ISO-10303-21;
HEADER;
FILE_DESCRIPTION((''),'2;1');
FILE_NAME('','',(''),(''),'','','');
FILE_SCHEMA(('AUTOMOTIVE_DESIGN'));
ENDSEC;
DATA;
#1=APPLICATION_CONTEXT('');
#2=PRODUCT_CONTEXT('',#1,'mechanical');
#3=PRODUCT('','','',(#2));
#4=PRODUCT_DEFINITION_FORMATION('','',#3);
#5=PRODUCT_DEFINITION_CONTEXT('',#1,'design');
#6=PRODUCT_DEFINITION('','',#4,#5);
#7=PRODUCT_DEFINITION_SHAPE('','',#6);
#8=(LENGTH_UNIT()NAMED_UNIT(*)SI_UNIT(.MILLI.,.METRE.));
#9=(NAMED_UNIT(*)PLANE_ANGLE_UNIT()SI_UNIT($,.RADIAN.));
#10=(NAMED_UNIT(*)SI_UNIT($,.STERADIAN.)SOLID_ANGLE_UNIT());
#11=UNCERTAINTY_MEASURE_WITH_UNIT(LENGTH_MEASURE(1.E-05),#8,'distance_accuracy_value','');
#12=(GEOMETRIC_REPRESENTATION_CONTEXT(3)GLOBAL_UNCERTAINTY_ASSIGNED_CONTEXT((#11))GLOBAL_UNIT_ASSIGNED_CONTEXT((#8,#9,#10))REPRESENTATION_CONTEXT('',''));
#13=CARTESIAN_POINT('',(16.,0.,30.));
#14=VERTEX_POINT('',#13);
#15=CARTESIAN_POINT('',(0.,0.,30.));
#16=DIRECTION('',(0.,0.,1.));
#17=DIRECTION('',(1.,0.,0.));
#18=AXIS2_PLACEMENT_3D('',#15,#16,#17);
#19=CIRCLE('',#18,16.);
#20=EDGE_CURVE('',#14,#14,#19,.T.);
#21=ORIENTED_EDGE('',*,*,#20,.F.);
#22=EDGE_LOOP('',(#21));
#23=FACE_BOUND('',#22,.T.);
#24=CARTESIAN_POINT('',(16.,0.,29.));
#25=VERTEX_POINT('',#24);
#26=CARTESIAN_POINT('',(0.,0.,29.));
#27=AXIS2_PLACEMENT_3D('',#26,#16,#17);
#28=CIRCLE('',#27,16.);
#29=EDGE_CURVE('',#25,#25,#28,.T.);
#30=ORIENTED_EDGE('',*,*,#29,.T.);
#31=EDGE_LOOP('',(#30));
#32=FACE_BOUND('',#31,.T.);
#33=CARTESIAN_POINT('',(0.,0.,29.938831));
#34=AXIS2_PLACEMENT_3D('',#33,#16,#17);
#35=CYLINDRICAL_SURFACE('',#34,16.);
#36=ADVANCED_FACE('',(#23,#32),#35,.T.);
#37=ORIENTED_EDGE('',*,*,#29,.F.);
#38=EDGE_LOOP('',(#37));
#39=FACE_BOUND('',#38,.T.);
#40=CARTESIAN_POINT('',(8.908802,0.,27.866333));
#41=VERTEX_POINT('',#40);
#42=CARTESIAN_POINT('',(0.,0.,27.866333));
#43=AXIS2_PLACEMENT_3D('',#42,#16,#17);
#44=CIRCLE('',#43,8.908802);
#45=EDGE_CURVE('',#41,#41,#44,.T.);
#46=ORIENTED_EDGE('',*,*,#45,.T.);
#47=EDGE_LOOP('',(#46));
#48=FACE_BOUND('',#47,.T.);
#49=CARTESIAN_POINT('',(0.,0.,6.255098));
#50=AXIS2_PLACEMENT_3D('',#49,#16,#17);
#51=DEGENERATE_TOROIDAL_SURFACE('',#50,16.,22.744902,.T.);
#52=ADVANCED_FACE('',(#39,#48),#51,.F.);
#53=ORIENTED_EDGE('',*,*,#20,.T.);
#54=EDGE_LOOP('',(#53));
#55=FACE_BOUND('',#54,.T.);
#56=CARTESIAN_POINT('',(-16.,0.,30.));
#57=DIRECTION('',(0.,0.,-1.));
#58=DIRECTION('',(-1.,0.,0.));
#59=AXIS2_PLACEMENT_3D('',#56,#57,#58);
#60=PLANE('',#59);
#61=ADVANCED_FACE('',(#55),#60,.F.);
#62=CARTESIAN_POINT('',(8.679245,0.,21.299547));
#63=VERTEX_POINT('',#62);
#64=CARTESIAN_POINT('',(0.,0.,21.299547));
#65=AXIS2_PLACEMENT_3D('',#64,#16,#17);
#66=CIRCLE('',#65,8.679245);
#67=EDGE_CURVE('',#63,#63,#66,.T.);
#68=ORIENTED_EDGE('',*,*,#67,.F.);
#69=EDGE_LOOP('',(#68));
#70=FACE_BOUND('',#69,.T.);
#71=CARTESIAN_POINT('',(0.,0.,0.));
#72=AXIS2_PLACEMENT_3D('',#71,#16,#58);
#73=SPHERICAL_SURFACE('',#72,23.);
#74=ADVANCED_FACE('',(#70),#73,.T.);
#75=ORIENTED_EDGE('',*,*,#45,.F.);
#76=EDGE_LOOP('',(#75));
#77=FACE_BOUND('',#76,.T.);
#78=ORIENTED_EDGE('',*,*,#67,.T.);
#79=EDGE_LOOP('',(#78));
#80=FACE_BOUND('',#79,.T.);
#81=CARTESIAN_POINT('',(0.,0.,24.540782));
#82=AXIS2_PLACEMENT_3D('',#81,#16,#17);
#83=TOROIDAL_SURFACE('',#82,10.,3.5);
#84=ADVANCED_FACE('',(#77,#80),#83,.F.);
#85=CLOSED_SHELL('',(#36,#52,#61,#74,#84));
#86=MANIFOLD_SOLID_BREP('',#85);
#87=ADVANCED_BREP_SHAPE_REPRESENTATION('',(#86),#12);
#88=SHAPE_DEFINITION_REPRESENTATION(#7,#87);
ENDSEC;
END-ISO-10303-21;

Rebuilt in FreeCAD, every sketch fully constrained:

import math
import FreeCAD as App
import Part
import Sketcher

V = App.Vector

doc = App.newDocument("Part")
params = doc.addObject("Spreadsheet::Sheet", "Params")
for row, (alias, value) in enumerate([
    ("sketch1_radius", "23 mm"),
    ("sketch1_radius2", "3.5 mm"),
    ("sketch1_width", "16 mm"),
    ("sketch1_height", "1 mm"),
    ("sketch1_height2", "53 mm"),
    ("revolution_angle", "360 deg"),
], start=1):
    params.set(f"A{row}", alias)
    params.set(f"B{row}", "=" + value)
    params.setAlias(f"B{row}", alias)

body = doc.addObject("PartDesign::Body", "Body")

sketch1 = body.newObject("Sketcher::SketchObject", "Sketch")
sketch1.AttachmentSupport = (doc.getObject("XZ_Plane"), [""])
sketch1.MapMode = "FlatFace"
sketch1.addGeometry(Part.LineSegment(V(-16, 29, 0), V(-16, 30, 0)), False)
sketch1.addGeometry(Part.LineSegment(V(-16, 30, 0), V(0, 30, 0)), False)
sketch1.addGeometry(Part.LineSegment(V(0, 30, 0), V(0, -23, 0)), False)
sketch1.addGeometry(Part.ArcOfCircle(Part.Circle(V(0, 0, 0), V(0, 0, 1), 23), math.radians(112), math.radians(270)), False)
sketch1.addGeometry(Part.ArcOfCircle(Part.Circle(V(-10, 24.5, 0), V(0, 0, 1), 3.5), math.radians(-68), math.radians(72)), False)
sketch1.addGeometry(Part.ArcOfCircle(Part.Circle(V(-16, 6.3, 0), V(0, 0, 1), 22.7), math.radians(71.83), math.radians(90)), False)
sketch1.addConstraint(Sketcher.Constraint("Coincident", 0, 2, 1, 1))
sketch1.addConstraint(Sketcher.Constraint("Coincident", 1, 2, 2, 1))
sketch1.addConstraint(Sketcher.Constraint("Coincident", 2, 2, 3, 2))
sketch1.addConstraint(Sketcher.Constraint("Tangent", 3, 1, 4, 1))
sketch1.addConstraint(Sketcher.Constraint("Tangent", 4, 2, 5, 1))
sketch1.addConstraint(Sketcher.Constraint("Coincident", 5, 2, 0, 1))
sketch1.addConstraint(Sketcher.Constraint("Vertical", 0))
sketch1.addConstraint(Sketcher.Constraint("Horizontal", 1))
sketch1.addConstraint(Sketcher.Constraint("Vertical", 2))
sketch1.addConstraint(Sketcher.Constraint("Coincident", 3, 3, -1, 1))
sketch1.addConstraint(Sketcher.Constraint("PointOnObject", 1, 2, -2))
sketch1.addConstraint(Sketcher.Constraint("Vertical", 5, 3, 0, 2))
sketch1.addConstraint(Sketcher.Constraint("Radius", 3, 23.0))
sketch1.addConstraint(Sketcher.Constraint("Radius", 4, 3.5))
sketch1.addConstraint(Sketcher.Constraint("DistanceX", 1, 1, 1, 2, 16.0))
sketch1.addConstraint(Sketcher.Constraint("DistanceY", 0, 1, 0, 2, 1.0))
sketch1.addConstraint(Sketcher.Constraint("DistanceY", 2, 2, 2, 1, 53.0))
sketch1.addConstraint(Sketcher.Constraint("DistanceX", 4, 3, -1, 1, 10.0))
sketch1.setExpression("Constraints[12]", "Params.sketch1_radius")
sketch1.setExpression("Constraints[13]", "Params.sketch1_radius2")
sketch1.setExpression("Constraints[14]", "Params.sketch1_width")
sketch1.setExpression("Constraints[15]", "Params.sketch1_height")
sketch1.setExpression("Constraints[16]", "Params.sketch1_height2")
revolution = body.newObject("PartDesign::Revolution", "Revolution")
revolution.Profile = sketch1
revolution.ReferenceAxis = (sketch1, ["V_Axis"])
revolution.setExpression("Angle", "Params.revolution_angle")

doc.recompute()
